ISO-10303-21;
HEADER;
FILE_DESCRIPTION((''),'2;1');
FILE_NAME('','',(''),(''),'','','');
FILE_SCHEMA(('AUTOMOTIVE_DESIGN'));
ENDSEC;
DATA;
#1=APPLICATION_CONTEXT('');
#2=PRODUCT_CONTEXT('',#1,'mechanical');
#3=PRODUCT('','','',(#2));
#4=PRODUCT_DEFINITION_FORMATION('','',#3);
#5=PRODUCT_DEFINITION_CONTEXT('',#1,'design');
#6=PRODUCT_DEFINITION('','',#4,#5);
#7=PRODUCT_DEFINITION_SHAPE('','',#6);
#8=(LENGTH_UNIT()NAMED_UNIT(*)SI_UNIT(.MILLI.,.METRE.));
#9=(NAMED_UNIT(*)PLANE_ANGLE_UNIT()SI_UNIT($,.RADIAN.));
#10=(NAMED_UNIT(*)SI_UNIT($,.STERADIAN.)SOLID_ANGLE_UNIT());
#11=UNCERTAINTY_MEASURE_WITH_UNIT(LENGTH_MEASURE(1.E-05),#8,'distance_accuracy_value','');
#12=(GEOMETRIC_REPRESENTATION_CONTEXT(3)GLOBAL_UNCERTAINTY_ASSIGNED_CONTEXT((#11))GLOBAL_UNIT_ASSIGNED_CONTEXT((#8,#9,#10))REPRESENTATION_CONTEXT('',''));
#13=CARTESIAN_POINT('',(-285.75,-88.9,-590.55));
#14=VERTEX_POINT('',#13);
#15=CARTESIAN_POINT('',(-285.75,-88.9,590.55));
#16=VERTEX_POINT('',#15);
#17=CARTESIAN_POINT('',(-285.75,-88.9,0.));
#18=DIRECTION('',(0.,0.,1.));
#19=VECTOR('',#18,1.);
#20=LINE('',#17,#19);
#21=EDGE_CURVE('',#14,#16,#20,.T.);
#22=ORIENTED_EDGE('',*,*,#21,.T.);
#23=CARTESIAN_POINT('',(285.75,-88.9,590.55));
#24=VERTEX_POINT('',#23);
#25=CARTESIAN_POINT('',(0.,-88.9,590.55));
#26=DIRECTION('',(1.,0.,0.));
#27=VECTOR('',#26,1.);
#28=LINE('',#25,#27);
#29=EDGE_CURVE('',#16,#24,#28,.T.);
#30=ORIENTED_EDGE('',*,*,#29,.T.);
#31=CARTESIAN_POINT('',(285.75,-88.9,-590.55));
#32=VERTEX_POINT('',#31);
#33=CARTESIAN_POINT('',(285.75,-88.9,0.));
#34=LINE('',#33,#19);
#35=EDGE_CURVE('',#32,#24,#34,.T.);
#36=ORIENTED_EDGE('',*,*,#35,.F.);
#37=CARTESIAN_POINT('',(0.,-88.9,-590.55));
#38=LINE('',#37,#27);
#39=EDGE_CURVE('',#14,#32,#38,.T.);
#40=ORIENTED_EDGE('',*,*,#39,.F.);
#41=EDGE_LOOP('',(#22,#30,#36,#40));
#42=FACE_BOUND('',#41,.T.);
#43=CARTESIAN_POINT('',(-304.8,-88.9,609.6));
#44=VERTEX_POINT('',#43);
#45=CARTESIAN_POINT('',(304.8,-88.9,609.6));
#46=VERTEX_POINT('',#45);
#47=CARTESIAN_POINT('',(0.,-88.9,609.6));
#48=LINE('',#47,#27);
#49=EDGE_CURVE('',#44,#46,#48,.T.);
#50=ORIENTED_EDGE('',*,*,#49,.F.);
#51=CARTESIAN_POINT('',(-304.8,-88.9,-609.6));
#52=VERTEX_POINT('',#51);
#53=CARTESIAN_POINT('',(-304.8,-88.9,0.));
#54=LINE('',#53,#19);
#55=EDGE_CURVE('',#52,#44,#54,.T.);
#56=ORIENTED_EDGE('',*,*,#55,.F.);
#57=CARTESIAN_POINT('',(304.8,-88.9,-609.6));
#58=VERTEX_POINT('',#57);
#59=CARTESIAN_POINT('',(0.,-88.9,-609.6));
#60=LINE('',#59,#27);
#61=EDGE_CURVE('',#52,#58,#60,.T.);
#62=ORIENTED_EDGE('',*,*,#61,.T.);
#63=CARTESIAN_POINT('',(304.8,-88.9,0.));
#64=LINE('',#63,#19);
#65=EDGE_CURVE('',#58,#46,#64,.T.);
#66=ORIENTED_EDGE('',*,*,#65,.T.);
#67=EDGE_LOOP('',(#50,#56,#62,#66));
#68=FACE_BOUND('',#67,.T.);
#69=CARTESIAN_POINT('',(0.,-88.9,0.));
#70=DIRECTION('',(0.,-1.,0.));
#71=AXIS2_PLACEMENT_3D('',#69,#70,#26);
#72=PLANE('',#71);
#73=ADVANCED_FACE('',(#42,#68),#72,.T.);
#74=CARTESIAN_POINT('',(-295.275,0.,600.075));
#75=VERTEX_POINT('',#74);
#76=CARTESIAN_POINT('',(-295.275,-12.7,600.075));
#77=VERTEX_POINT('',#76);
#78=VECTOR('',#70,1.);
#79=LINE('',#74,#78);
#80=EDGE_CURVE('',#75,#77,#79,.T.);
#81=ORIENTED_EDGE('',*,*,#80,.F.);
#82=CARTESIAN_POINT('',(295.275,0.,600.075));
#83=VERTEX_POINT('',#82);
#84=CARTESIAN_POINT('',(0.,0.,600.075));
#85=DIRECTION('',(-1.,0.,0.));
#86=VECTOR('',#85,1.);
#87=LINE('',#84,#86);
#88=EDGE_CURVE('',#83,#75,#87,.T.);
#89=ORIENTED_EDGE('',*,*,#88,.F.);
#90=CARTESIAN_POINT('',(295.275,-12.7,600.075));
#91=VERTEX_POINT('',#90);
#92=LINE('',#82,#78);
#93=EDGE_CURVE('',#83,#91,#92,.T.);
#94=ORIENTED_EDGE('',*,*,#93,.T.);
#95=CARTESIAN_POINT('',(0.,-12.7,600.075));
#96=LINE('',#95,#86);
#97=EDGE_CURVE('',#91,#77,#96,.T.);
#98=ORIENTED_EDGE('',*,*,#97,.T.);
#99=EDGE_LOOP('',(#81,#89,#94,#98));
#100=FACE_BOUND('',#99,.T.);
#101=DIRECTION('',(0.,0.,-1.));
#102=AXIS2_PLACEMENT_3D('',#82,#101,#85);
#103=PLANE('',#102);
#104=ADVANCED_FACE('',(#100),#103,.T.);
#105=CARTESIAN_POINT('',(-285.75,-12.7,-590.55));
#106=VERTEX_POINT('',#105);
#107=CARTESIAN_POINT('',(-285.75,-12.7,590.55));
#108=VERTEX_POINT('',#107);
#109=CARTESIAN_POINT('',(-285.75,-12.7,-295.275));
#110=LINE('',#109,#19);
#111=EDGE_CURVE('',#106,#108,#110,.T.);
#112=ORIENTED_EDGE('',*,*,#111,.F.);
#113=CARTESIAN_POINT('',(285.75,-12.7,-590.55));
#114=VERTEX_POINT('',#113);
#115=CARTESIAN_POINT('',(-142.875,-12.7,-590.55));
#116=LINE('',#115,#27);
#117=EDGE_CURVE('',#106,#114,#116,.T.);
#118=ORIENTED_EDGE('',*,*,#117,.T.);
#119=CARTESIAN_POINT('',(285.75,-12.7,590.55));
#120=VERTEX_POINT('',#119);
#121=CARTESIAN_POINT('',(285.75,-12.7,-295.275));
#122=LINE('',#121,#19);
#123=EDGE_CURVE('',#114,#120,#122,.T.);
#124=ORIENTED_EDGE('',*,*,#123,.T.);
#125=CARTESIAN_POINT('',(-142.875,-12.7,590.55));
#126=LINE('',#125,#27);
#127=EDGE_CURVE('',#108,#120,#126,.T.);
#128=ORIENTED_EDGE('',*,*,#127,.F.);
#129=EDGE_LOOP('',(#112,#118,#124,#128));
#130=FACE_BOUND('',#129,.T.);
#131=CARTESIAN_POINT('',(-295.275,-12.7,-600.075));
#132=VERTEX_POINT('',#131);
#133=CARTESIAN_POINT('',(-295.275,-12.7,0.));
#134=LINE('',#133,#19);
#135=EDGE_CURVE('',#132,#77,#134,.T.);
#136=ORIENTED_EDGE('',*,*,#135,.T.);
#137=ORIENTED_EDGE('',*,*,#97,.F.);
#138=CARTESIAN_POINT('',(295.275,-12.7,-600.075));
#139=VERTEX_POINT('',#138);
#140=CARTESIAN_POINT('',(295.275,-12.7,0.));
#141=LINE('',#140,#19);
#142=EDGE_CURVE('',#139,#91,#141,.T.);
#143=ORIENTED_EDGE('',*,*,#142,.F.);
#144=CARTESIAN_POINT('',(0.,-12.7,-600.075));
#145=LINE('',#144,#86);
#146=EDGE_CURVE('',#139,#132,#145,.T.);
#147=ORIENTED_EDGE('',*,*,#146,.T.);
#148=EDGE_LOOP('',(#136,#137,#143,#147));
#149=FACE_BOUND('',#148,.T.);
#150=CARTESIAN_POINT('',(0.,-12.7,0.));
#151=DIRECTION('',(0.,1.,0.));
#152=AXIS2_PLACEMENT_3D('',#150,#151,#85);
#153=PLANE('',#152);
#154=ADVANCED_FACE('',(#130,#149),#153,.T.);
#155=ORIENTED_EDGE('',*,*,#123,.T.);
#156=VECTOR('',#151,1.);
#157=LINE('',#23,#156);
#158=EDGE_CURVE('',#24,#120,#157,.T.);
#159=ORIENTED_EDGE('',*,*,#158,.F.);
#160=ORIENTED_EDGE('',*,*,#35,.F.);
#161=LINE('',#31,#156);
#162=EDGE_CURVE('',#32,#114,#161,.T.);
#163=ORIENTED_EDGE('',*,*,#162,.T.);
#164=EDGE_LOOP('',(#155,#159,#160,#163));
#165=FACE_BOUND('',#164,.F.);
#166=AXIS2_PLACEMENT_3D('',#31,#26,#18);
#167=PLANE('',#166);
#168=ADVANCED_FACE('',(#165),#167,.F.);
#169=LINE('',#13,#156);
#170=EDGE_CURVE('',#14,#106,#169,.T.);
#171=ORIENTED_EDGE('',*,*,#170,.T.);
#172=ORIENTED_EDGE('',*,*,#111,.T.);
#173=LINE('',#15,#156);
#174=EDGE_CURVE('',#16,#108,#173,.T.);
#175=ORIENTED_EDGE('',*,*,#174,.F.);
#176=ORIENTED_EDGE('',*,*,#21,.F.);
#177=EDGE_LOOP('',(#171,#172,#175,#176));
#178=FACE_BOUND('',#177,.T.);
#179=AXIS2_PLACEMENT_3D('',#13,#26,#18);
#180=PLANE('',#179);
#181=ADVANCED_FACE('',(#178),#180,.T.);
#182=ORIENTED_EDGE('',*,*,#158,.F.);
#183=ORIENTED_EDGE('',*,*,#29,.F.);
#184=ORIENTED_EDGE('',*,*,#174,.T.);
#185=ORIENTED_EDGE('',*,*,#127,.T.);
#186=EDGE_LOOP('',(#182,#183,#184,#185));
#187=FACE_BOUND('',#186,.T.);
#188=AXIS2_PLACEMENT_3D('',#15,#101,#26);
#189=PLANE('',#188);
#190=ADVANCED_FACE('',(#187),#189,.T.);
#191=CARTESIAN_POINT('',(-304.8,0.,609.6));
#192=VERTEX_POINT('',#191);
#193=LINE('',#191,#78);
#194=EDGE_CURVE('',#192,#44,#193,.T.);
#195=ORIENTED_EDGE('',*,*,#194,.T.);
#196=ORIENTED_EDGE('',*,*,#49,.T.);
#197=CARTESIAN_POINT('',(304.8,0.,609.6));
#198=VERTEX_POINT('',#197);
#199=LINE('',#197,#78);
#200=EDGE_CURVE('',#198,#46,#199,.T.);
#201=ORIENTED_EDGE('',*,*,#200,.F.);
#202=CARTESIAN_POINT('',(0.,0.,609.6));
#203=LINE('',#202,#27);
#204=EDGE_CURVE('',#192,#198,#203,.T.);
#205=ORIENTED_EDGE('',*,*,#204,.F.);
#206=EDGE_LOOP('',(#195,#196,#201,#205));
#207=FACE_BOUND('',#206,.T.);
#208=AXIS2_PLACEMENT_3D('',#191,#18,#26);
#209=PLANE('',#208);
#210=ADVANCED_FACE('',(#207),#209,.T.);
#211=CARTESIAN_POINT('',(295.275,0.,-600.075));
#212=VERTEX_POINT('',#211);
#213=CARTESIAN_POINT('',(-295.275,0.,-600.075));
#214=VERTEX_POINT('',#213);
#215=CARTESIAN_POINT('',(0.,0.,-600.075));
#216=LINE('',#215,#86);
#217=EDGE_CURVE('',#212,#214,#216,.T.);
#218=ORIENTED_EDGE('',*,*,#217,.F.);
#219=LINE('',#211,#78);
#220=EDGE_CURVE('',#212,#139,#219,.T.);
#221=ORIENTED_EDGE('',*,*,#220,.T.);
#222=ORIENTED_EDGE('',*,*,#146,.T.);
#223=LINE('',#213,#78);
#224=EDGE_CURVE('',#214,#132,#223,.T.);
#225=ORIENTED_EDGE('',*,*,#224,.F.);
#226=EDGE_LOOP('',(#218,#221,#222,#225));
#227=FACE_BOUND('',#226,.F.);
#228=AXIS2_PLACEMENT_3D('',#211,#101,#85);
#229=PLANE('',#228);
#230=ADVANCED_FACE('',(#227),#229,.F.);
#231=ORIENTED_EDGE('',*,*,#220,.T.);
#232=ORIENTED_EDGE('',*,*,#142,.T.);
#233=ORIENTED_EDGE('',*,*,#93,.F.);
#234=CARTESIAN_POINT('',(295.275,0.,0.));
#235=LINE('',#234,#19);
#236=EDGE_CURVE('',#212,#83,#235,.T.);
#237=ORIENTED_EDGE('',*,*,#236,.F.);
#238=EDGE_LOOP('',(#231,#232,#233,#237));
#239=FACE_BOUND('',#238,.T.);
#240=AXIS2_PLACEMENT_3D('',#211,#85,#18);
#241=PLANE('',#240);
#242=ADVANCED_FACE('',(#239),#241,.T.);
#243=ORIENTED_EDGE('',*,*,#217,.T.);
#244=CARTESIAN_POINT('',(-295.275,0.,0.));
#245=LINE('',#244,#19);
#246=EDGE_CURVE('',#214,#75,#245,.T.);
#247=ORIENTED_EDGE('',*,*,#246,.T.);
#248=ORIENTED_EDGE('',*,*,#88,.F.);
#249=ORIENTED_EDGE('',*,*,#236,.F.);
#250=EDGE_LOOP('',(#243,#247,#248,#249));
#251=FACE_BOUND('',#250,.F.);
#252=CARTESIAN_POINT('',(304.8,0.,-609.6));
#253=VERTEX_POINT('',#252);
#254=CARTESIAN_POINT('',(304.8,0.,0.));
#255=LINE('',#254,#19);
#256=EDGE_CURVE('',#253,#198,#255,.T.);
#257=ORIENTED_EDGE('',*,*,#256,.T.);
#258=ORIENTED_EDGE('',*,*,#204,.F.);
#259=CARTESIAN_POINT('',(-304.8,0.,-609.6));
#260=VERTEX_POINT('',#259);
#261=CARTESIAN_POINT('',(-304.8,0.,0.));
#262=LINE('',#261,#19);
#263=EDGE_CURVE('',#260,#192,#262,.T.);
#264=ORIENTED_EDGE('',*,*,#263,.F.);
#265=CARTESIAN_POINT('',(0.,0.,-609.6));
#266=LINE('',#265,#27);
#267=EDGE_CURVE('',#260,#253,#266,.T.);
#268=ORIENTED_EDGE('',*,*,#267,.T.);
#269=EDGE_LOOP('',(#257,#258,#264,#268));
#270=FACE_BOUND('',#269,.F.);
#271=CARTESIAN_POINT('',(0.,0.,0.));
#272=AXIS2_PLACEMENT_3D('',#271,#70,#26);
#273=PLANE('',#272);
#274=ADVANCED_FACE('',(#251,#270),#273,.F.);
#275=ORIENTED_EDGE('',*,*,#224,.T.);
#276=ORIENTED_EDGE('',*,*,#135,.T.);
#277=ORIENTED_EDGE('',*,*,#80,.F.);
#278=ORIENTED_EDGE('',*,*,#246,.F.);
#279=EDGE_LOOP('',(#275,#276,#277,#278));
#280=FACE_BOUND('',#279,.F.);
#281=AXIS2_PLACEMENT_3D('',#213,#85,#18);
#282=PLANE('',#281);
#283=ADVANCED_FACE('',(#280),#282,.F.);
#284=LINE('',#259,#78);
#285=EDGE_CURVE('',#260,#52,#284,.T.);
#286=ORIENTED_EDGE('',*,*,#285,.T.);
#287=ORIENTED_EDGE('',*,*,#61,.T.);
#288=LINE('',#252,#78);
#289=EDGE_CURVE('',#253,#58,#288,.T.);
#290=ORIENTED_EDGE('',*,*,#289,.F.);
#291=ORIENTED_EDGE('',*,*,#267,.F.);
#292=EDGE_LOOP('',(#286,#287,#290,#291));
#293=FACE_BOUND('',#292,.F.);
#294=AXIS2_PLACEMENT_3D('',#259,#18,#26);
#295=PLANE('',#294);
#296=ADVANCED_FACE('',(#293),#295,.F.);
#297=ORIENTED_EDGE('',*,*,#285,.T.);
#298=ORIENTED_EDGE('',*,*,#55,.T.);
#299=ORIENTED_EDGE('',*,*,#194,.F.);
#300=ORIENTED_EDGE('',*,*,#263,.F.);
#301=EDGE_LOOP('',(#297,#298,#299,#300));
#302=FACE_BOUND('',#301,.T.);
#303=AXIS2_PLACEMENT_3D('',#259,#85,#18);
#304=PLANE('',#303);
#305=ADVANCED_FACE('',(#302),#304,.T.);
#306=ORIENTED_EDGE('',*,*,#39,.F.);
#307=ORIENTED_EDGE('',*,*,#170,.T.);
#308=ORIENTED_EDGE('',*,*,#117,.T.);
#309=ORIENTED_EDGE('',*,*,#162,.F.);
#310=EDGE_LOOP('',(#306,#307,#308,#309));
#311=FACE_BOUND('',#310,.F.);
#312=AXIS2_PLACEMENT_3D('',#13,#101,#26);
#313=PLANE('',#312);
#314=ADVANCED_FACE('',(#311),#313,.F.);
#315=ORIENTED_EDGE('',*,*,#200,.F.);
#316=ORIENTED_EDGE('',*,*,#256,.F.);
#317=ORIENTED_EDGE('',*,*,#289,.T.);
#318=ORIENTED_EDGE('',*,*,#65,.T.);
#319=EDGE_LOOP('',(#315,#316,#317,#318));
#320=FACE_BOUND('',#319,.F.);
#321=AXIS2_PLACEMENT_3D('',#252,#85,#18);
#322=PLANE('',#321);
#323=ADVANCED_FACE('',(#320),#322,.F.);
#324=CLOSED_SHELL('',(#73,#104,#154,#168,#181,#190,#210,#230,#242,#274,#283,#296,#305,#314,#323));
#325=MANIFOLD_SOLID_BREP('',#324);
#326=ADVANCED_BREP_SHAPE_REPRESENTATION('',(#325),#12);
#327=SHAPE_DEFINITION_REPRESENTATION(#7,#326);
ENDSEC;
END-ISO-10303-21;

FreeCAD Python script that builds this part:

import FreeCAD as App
import Part
import Sketcher

V = App.Vector
Q = App.Units.Quantity


def add_polygon(sketch, points):
    """Adds a closed chain of lines whose ends are joined by coincident constraints."""
    first, n = sketch.GeometryCount, len(points)
    for a, b in zip(points, points[1:] + points[:1]):
        sketch.addGeometry(Part.LineSegment(App.Vector(*a, 0), App.Vector(*b, 0)), False)
    for i in range(n):
        sketch.addConstraint(Sketcher.Constraint("Coincident", first + i, 2, first + (i + 1) % n, 1))

doc = App.newDocument("Part")
body = doc.addObject("PartDesign::Body", "Body")

# Sketch on XZ plane
sketch1 = doc.addObject("Sketcher::SketchObject", "Sketch")
body.addObject(sketch1)
sketch1.AttachmentSupport = (doc.XZ_Plane, [""])
sketch1.MapMode = "FlatFace"
add_polygon(sketch1, [(-305, 610), (-305, -610), (305, -610), (305, 610)])  # lines 0-3
sketch1.addConstraint(Sketcher.Constraint("Vertical", 0))
sketch1.addConstraint(Sketcher.Constraint("Horizontal", 1))
sketch1.addConstraint(Sketcher.Constraint("Vertical", 2))
sketch1.addConstraint(Sketcher.Constraint("Horizontal", 3))
sketch1.addConstraint(Sketcher.Constraint("Symmetric", 0, 2, 2, 2, -1, 1))
sketch1.addConstraint(Sketcher.Constraint("DistanceX", 1, 1, 1, 2, Q("24 in")))
sketch1.addConstraint(Sketcher.Constraint("DistanceY", 0, 2, 0, 1, Q("48 in")))
pad1 = doc.addObject("PartDesign::Pad", "Pad")
body.addObject(pad1)
pad1.Profile = sketch1
pad1.Length = Q("3.5 in")

# Sketch on XZ plane
sketch2 = doc.addObject("Sketcher::SketchObject", "Sketch001")
body.addObject(sketch2)
sketch2.AttachmentSupport = (doc.XZ_Plane, [""])
sketch2.MapMode = "FlatFace"
sketch2.AttachmentOffset = App.Placement(V(0, 0, 3.5 * 25.4), App.Rotation())
add_polygon(sketch2, [(-286, 591), (-286, -591), (286, -591), (286, 591)])  # lines 0-3
sketch2.addConstraint(Sketcher.Constraint("Vertical", 0))
sketch2.addConstraint(Sketcher.Constraint("Horizontal", 1))
sketch2.addConstraint(Sketcher.Constraint("Vertical", 2))
sketch2.addConstraint(Sketcher.Constraint("Horizontal", 3))
sketch2.addConstraint(Sketcher.Constraint("Symmetric", 0, 2, 2, 2, -1, 1))
sketch2.addConstraint(Sketcher.Constraint("DistanceX", 1, 1, 1, 2, Q("22.5 in")))
sketch2.addConstraint(Sketcher.Constraint("DistanceY", 0, 2, 0, 1, Q("46.5 in")))
pocket1 = doc.addObject("PartDesign::Pocket", "Pocket")
body.addObject(pocket1)
pocket1.Profile = sketch2
pocket1.Length = Q("3.5 in")

# Sketch on XZ plane
sketch3 = doc.addObject("Sketcher::SketchObject", "Sketch002")
body.addObject(sketch3)
sketch3.AttachmentSupport = (doc.XZ_Plane, [""])
sketch3.MapMode = "FlatFace"
add_polygon(sketch3, [(295, 600), (295, -600), (-295, -600), (-295, 600)])  # lines 0-3
sketch3.addConstraint(Sketcher.Constraint("Vertical", 0))
sketch3.addConstraint(Sketcher.Constraint("Horizontal", 1))
sketch3.addConstraint(Sketcher.Constraint("Vertical", 2))
sketch3.addConstraint(Sketcher.Constraint("Horizontal", 3))
sketch3.addConstraint(Sketcher.Constraint("Symmetric", 0, 2, 2, 2, -1, 1))
sketch3.addConstraint(Sketcher.Constraint("DistanceX", 1, 2, 1, 1, Q("23.25 in")))
sketch3.addConstraint(Sketcher.Constraint("DistanceY", 0, 2, 0, 1, Q("47.25 in")))
pocket2 = doc.addObject("PartDesign::Pocket", "Pocket001")
body.addObject(pocket2)
pocket2.Profile = sketch3
pocket2.Length = Q("0.5 in")
pocket2.Reversed = True

doc.recompute()
